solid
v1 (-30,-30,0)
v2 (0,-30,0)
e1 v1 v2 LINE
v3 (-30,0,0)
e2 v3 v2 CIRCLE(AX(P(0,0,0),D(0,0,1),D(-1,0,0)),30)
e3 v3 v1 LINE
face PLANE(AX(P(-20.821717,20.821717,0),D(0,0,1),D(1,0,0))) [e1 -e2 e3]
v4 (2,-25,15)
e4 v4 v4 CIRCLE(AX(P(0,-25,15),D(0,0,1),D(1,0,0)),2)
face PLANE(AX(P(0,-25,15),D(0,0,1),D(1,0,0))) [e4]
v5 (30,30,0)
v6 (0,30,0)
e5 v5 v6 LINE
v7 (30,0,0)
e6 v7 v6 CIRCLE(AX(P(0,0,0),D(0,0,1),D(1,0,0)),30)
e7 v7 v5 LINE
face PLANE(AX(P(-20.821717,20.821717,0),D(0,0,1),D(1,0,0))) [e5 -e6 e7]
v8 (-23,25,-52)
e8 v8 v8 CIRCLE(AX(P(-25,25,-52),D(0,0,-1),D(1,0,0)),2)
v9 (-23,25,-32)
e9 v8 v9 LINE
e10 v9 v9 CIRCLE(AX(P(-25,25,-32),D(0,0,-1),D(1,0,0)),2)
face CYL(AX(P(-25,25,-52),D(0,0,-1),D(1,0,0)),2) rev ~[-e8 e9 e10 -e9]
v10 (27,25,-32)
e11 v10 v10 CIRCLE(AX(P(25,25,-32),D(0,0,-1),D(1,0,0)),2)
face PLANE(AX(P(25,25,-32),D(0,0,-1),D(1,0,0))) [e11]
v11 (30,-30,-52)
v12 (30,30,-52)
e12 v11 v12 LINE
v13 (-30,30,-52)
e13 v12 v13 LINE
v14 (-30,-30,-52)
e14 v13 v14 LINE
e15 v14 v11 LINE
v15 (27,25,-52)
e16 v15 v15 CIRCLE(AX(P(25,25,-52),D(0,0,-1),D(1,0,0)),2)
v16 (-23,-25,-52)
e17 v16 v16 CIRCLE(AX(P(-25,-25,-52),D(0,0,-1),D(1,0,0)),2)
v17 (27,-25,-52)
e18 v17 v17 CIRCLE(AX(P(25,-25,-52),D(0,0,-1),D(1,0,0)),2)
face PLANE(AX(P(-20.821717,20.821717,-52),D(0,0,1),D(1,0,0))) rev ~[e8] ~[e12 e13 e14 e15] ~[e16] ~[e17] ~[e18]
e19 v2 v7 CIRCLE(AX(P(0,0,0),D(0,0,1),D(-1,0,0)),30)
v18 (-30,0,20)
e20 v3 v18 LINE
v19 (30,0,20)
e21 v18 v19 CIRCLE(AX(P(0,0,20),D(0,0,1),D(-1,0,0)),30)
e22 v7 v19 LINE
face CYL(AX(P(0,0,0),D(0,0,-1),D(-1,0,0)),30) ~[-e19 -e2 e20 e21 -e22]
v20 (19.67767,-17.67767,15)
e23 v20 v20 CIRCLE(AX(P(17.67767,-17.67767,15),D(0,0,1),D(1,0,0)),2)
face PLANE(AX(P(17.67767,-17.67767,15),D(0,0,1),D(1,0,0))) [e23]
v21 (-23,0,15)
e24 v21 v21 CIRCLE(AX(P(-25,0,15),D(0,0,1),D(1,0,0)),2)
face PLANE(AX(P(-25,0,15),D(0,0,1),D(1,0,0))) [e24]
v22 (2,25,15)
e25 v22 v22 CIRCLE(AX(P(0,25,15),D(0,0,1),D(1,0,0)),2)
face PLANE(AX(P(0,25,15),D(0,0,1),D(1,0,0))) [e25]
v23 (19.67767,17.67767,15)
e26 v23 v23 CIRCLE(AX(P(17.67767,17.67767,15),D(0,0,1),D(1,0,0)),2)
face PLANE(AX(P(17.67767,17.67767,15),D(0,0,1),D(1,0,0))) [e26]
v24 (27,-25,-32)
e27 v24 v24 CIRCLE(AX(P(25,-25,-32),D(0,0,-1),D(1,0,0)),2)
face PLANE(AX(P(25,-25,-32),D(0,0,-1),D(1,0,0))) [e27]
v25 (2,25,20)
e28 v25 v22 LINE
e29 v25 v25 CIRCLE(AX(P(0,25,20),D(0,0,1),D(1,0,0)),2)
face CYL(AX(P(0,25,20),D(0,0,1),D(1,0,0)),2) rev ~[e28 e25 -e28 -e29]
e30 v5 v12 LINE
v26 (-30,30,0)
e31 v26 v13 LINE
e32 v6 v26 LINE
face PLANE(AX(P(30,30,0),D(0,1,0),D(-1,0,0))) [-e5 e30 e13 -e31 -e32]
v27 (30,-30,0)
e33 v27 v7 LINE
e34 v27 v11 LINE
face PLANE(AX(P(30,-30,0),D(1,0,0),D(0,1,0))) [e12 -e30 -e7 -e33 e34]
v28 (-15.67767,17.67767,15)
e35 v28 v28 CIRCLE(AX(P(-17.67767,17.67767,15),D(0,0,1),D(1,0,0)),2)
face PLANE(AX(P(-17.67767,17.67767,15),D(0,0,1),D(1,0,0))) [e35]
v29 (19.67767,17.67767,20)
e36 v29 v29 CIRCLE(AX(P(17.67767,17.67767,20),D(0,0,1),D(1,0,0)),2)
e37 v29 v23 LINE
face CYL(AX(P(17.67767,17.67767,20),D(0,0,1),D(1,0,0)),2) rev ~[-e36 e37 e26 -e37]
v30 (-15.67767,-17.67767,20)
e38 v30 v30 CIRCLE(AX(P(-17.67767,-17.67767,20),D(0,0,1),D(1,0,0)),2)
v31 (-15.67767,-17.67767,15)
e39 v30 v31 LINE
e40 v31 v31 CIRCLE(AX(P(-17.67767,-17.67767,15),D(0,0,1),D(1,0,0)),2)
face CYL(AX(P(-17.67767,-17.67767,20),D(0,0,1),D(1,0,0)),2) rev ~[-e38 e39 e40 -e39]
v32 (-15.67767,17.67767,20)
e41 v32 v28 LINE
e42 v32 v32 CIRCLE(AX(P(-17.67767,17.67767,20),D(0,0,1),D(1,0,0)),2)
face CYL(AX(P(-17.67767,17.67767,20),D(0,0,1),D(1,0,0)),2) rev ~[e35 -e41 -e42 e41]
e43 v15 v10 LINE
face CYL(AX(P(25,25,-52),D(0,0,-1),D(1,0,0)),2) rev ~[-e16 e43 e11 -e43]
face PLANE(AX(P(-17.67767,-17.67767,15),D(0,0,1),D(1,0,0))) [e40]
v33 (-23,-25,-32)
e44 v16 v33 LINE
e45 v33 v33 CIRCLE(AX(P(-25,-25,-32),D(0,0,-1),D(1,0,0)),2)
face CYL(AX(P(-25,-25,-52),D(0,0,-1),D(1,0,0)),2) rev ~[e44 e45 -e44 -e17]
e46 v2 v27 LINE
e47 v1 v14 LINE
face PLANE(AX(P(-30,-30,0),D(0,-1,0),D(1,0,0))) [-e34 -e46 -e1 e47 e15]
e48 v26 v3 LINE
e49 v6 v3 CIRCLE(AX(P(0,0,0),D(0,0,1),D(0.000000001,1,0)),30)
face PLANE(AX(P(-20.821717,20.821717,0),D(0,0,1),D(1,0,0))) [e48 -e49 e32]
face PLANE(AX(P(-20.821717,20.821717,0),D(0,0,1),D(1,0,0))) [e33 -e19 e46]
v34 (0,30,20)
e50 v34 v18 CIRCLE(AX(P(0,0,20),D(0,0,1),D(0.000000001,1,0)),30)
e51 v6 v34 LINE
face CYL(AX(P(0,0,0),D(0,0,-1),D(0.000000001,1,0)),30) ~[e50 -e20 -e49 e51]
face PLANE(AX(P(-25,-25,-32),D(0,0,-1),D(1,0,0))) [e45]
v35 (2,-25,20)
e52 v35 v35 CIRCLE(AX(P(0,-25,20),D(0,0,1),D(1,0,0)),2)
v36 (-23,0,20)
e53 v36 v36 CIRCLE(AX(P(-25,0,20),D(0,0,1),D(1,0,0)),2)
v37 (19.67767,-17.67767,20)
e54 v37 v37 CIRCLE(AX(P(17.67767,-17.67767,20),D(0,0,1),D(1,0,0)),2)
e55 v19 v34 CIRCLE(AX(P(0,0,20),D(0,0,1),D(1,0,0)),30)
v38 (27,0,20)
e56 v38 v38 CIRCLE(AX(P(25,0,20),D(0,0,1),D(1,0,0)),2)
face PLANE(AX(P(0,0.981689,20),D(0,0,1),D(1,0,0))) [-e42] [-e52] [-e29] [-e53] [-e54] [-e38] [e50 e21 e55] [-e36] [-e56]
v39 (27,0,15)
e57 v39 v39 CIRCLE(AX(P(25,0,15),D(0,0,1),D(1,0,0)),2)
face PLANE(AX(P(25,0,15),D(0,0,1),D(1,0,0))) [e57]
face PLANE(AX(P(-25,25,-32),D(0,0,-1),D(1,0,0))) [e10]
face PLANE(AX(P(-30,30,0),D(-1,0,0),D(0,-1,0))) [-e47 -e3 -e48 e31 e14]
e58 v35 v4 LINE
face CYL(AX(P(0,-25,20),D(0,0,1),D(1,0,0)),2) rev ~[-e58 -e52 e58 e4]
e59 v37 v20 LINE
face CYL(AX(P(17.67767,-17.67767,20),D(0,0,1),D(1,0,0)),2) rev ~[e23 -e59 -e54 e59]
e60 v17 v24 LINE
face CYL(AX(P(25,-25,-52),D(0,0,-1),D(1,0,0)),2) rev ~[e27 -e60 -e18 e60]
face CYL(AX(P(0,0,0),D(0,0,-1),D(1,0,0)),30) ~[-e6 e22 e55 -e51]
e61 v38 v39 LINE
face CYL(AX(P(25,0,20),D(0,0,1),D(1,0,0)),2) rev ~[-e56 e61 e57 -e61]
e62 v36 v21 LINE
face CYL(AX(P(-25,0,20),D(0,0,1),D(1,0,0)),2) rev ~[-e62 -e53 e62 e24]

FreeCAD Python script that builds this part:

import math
import FreeCAD as App
import Part
import Sketcher

V = App.Vector

doc = App.newDocument("Part")
body = doc.addObject("PartDesign::Body", "Body")

sketch1 = body.newObject("Sketcher::SketchObject", "Sketch")
sketch1.AttachmentSupport = (doc.getObject("XY_Plane"), [""])
sketch1.MapMode = "FlatFace"
sketch1.addGeometry([
    Part.LineSegment(V(-30, 30, 0), V(-30, -30, 0)),
    Part.LineSegment(V(-30, -30, 0), V(30, -30, 0)),
    Part.LineSegment(V(30, -30, 0), V(30, 30, 0)),
    Part.LineSegment(V(30, 30, 0), V(-30, 30, 0)),
], False)
sketch1.addConstraint([
    Sketcher.Constraint("Coincident", 0, 2, 1, 1),
    Sketcher.Constraint("Coincident", 1, 2, 2, 1),
    Sketcher.Constraint("Coincident", 2, 2, 3, 1),
    Sketcher.Constraint("Coincident", 3, 2, 0, 1),
    Sketcher.Constraint("Vertical", 0),
    Sketcher.Constraint("Horizontal", 1),
    Sketcher.Constraint("Vertical", 2),
    Sketcher.Constraint("Horizontal", 3),
    Sketcher.Constraint("Symmetric", 0, 2, 2, 2, -1, 1),
    Sketcher.Constraint("Equal", 3, 0),
    Sketcher.Constraint("DistanceX", 1, 1, 1, 2, 60.0),
])
pad1 = body.newObject("PartDesign::Pad", "Pad")
pad1.Profile = sketch1
pad1.Length = 52
pad1.Reversed = True

sketch2 = body.newObject("Sketcher::SketchObject", "Sketch001")
sketch2.AttachmentSupport = (doc.getObject("XY_Plane"), [""])
sketch2.MapMode = "FlatFace"
sketch2.addGeometry([
    Part.ArcOfCircle(Part.Circle(V(0, 0, 0), V(0, 0, 1), 30), math.radians(0), math.radians(90)),
    Part.ArcOfCircle(Part.Circle(V(0, 0, 0), V(0, 0, 1), 30), math.radians(90), math.radians(180)),
    Part.ArcOfCircle(Part.Circle(V(0, 0, 0), V(0, 0, 1), 30), math.radians(180), math.radians(360)),
], False)
sketch2.addConstraint([
    Sketcher.Constraint("Tangent", 0, 2, 1, 1),
    Sketcher.Constraint("Tangent", 1, 2, 2, 1),
    Sketcher.Constraint("Tangent", 2, 2, 0, 1),
    Sketcher.Constraint("Coincident", 0, 3, -1, 1),
    Sketcher.Constraint("PointOnObject", 0, 2, -2),
    Sketcher.Constraint("PointOnObject", 1, 2, -1),
    Sketcher.Constraint("PointOnObject", 2, 2, -1),
    Sketcher.Constraint("Radius", 0, 30.0),
])
pad2 = body.newObject("PartDesign::Pad", "Pad001")
pad2.Profile = sketch2
pad2.Length = 20

sketch3 = body.newObject("Sketcher::SketchObject", "Sketch002")
sketch3.AttachmentSupport = (doc.getObject("XY_Plane"), [""])
sketch3.MapMode = "FlatFace"
sketch3.AttachmentOffset = App.Placement(V(0, 0, 20), App.Rotation())
sketch3.addGeometry([
    Part.Circle(V(0, 25, 0), V(0, 0, 1), 2),
    Part.Circle(V(-17.7, 17.7, 0), V(0, 0, 1), 2),
    Part.Circle(V(-25, 0, 0), V(0, 0, 1), 2),
    Part.Circle(V(-17.7, -17.7, 0), V(0, 0, 1), 2),
    Part.Circle(V(0, -25, 0), V(0, 0, 1), 2),
    Part.Circle(V(17.7, -17.7, 0), V(0, 0, 1), 2),
    Part.Circle(V(25, 0, 0), V(0, 0, 1), 2),
    Part.Circle(V(17.7, 17.7, 0), V(0, 0, 1), 2),
], False)
sketch3.addConstraint([
    Sketcher.Constraint("Equal", 0, 1),
    Sketcher.Constraint("Equal", 1, 2),
    Sketcher.Constraint("Equal", 2, 3),
    Sketcher.Constraint("Equal", 3, 4),
    Sketcher.Constraint("Equal", 4, 5),
    Sketcher.Constraint("Equal", 5, 6),
    Sketcher.Constraint("Equal", 6, 7),
    Sketcher.Constraint("Symmetric", 0, 3, 4, 3, -1, 1),
    Sketcher.Constraint("Symmetric", 1, 3, 5, 3, -1, 1),
    Sketcher.Constraint("Symmetric", 2, 3, 6, 3, -1, 1),
    Sketcher.Constraint("Symmetric", 3, 3, 7, 3, -1, 1),
    Sketcher.Constraint("Symmetric", 3, 3, 5, 3, -2),
    Sketcher.Constraint("PointOnObject", 0, 3, -2),
    Sketcher.Constraint("PointOnObject", 2, 3, -1),
    Sketcher.Constraint("Diameter", 0, 4.0),
    Sketcher.Constraint("DistanceY", -1, 1, 0, 3, 25.0),
    Sketcher.Constraint("DistanceX", 2, 3, -1, 1, 25.0),
    Sketcher.Constraint("DistanceX", 1, 3, -1, 1, 17.67767),
    Sketcher.Constraint("DistanceY", -1, 1, 1, 3, 17.67767),
])
pocket1 = body.newObject("PartDesign::Pocket", "Pocket")
pocket1.Profile = sketch3
pocket1.Length = 5

sketch4 = body.newObject("Sketcher::SketchObject", "Sketch003")
sketch4.AttachmentSupport = (doc.getObject("XY_Plane"), [""])
sketch4.MapMode = "FlatFace"
sketch4.AttachmentOffset = App.Placement(V(0, 0, -52), App.Rotation())
sketch4.addGeometry([
    Part.Circle(V(-25, -25, 0), V(0, 0, 1), 2),
    Part.Circle(V(25, 25, 0), V(0, 0, 1), 2),
    Part.Circle(V(25, -25, 0), V(0, 0, 1), 2),
    Part.Circle(V(-25, 25, 0), V(0, 0, 1), 2),
], False)
sketch4.addConstraint([
    Sketcher.Constraint("Equal", 0, 1),
    Sketcher.Constraint("Equal", 1, 2),
    Sketcher.Constraint("Equal", 2, 3),
    Sketcher.Constraint("Symmetric", 0, 3, 1, 3, -1, 1),
    Sketcher.Constraint("Symmetric", 2, 3, 3, 3, -1, 1),
    Sketcher.Constraint("Symmetric", 0, 3, 2, 3, -2),
    Sketcher.Constraint("Diameter", 0, 4.0),
    Sketcher.Constraint("DistanceX", 0, 3, -1, 1, 25.0),
    Sketcher.Constraint("DistanceY", 0, 3, -1, 1, 25.0),
])
pocket2 = body.newObject("PartDesign::Pocket", "Pocket001")
pocket2.Profile = sketch4
pocket2.Length = 20
pocket2.Reversed = True

doc.recompute()
